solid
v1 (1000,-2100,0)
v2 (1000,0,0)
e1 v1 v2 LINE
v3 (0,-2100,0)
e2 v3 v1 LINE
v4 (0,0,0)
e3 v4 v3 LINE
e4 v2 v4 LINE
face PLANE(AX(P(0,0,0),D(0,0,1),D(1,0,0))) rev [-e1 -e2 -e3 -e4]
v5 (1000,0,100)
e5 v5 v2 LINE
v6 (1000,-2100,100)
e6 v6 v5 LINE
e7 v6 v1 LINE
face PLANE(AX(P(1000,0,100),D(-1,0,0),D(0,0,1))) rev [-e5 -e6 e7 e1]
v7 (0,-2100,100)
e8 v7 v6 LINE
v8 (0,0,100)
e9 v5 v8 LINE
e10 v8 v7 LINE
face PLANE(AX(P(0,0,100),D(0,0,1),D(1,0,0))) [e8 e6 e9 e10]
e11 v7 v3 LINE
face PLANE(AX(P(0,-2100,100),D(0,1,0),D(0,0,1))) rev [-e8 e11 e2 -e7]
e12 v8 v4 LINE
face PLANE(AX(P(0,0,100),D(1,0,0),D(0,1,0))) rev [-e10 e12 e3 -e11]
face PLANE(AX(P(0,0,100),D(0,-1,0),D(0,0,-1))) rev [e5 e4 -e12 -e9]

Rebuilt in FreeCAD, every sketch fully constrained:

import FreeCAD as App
import Part
import Sketcher

V = App.Vector
Q = App.Units.Quantity


def add_polygon(sketch, points):
    """Adds a closed chain of lines whose ends are joined by coincident constraints."""
    first, n = sketch.GeometryCount, len(points)
    for a, b in zip(points, points[1:] + points[:1]):
        sketch.addGeometry(Part.LineSegment(App.Vector(*a, 0), App.Vector(*b, 0)), False)
    for i in range(n):
        sketch.addConstraint(Sketcher.Constraint("Coincident", first + i, 2, first + (i + 1) % n, 1))

doc = App.newDocument("Part")
body = doc.addObject("PartDesign::Body", "Body")

# Sketch on XY plane
sketch1 = body.newObject("Sketcher::SketchObject", "Sketch")
sketch1.AttachmentSupport = (doc.getObject("XY_Plane"), [""])
sketch1.MapMode = "FlatFace"
add_polygon(sketch1, [(0, 0), (0, -2100), (1000, -2100), (1000, 0)])  # lines 0-3
sketch1.addConstraint([
    Sketcher.Constraint("Vertical", 0),
    Sketcher.Constraint("Horizontal", 1),
    Sketcher.Constraint("Vertical", 2),
    Sketcher.Constraint("Horizontal", 3),
    Sketcher.Constraint("Coincident", 3, 2, -1, 1),
    Sketcher.Constraint("DistanceX", 1, 1, 1, 2, Q("1000 mm")),
    Sketcher.Constraint("DistanceY", 0, 2, 0, 1, Q("2100 mm")),
])
pad1 = body.newObject("PartDesign::Pad", "Pad")
pad1.Profile = sketch1
pad1.Length = 100

doc.recompute()
